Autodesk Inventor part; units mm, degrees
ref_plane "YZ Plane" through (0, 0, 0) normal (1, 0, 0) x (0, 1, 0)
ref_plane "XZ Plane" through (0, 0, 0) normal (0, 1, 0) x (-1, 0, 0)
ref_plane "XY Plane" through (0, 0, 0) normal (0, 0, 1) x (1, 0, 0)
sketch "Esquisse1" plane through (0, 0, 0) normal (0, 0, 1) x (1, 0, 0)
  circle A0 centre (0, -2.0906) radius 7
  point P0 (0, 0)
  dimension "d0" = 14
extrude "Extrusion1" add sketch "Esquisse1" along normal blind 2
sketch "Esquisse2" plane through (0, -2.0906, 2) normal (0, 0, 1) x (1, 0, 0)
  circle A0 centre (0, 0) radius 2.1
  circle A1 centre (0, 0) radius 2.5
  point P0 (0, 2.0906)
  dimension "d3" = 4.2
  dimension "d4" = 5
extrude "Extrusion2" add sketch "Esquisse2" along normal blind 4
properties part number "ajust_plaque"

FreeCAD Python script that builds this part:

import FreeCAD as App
import Part
import Sketcher
from FreeCAD import Vector
Q = App.Units.Quantity

doc = App.newDocument("Part")
params = doc.addObject("Spreadsheet::Sheet", "Params")
for row, (alias, value) in enumerate([
    ("sketch1_diameter", "14 mm"),
    ("pad1_length", "2 mm"),
    ("sketch2_diameter", "5 mm"),
    ("sketch2_diameter2", "4.2 mm"),
    ("pad2_length", "4 mm"),
], start=1):
    params.set(f"A{row}", alias)
    params.set(f"B{row}", "=" + value)
    params.setAlias(f"B{row}", alias)

body = doc.addObject("PartDesign::Body", "Body")

sketch1 = body.newObject("Sketcher::SketchObject", "Sketch")
sketch1.AttachmentSupport = (doc.getObject("XY_Plane"), [""])
sketch1.MapMode = "FlatFace"
sketch1.addGeometry(Part.Circle(Vector(0, -2, 0), Vector(0, 0, 1), 7), False)
sketch1.addConstraint([
    Sketcher.Constraint("PointOnObject", 0, 3, -2),
    Sketcher.Constraint("Diameter", 0, Q("14 mm")),
    Sketcher.Constraint("DistanceY", 0, 3, -1, 1, Q("2.0906 mm")),
])
sketch1.setExpression("Constraints[1]", "Params.sketch1_diameter")
pad1 = body.newObject("PartDesign::Pad", "Pad")
pad1.Profile = sketch1
pad1.setExpression("Length", "Params.pad1_length")

sketch2 = body.newObject("Sketcher::SketchObject", "Sketch001")
sketch2.AttachmentSupport = (doc.getObject("XY_Plane"), [""])
sketch2.MapMode = "FlatFace"
sketch2.AttachmentOffset = App.Placement(Vector(0, 0, 2), App.Rotation())
sketch2.addGeometry([
    Part.Circle(Vector(0, -2.1, 0), Vector(0, 0, 1), 2.5),
    Part.Circle(Vector(0, -2.1, 0), Vector(0, 0, 1), 2.1),
], False)
sketch2.addConstraint([
    Sketcher.Constraint("Coincident", 1, 3, 0, 3),
    Sketcher.Constraint("PointOnObject", 0, 3, -2),
    Sketcher.Constraint("Diameter", 0, Q("5 mm")),
    Sketcher.Constraint("Diameter", 1, Q("4.2 mm")),
    Sketcher.Constraint("DistanceY", 0, 3, -1, 1, Q("2.0906 mm")),
])
sketch2.setExpression("Constraints[2]", "Params.sketch2_diameter")
sketch2.setExpression("Constraints[3]", "Params.sketch2_diameter2")
pad2 = body.newObject("PartDesign::Pad", "Pad001")
pad2.Profile = sketch2
pad2.setExpression("Length", "Params.pad2_length")

doc.recompute()
